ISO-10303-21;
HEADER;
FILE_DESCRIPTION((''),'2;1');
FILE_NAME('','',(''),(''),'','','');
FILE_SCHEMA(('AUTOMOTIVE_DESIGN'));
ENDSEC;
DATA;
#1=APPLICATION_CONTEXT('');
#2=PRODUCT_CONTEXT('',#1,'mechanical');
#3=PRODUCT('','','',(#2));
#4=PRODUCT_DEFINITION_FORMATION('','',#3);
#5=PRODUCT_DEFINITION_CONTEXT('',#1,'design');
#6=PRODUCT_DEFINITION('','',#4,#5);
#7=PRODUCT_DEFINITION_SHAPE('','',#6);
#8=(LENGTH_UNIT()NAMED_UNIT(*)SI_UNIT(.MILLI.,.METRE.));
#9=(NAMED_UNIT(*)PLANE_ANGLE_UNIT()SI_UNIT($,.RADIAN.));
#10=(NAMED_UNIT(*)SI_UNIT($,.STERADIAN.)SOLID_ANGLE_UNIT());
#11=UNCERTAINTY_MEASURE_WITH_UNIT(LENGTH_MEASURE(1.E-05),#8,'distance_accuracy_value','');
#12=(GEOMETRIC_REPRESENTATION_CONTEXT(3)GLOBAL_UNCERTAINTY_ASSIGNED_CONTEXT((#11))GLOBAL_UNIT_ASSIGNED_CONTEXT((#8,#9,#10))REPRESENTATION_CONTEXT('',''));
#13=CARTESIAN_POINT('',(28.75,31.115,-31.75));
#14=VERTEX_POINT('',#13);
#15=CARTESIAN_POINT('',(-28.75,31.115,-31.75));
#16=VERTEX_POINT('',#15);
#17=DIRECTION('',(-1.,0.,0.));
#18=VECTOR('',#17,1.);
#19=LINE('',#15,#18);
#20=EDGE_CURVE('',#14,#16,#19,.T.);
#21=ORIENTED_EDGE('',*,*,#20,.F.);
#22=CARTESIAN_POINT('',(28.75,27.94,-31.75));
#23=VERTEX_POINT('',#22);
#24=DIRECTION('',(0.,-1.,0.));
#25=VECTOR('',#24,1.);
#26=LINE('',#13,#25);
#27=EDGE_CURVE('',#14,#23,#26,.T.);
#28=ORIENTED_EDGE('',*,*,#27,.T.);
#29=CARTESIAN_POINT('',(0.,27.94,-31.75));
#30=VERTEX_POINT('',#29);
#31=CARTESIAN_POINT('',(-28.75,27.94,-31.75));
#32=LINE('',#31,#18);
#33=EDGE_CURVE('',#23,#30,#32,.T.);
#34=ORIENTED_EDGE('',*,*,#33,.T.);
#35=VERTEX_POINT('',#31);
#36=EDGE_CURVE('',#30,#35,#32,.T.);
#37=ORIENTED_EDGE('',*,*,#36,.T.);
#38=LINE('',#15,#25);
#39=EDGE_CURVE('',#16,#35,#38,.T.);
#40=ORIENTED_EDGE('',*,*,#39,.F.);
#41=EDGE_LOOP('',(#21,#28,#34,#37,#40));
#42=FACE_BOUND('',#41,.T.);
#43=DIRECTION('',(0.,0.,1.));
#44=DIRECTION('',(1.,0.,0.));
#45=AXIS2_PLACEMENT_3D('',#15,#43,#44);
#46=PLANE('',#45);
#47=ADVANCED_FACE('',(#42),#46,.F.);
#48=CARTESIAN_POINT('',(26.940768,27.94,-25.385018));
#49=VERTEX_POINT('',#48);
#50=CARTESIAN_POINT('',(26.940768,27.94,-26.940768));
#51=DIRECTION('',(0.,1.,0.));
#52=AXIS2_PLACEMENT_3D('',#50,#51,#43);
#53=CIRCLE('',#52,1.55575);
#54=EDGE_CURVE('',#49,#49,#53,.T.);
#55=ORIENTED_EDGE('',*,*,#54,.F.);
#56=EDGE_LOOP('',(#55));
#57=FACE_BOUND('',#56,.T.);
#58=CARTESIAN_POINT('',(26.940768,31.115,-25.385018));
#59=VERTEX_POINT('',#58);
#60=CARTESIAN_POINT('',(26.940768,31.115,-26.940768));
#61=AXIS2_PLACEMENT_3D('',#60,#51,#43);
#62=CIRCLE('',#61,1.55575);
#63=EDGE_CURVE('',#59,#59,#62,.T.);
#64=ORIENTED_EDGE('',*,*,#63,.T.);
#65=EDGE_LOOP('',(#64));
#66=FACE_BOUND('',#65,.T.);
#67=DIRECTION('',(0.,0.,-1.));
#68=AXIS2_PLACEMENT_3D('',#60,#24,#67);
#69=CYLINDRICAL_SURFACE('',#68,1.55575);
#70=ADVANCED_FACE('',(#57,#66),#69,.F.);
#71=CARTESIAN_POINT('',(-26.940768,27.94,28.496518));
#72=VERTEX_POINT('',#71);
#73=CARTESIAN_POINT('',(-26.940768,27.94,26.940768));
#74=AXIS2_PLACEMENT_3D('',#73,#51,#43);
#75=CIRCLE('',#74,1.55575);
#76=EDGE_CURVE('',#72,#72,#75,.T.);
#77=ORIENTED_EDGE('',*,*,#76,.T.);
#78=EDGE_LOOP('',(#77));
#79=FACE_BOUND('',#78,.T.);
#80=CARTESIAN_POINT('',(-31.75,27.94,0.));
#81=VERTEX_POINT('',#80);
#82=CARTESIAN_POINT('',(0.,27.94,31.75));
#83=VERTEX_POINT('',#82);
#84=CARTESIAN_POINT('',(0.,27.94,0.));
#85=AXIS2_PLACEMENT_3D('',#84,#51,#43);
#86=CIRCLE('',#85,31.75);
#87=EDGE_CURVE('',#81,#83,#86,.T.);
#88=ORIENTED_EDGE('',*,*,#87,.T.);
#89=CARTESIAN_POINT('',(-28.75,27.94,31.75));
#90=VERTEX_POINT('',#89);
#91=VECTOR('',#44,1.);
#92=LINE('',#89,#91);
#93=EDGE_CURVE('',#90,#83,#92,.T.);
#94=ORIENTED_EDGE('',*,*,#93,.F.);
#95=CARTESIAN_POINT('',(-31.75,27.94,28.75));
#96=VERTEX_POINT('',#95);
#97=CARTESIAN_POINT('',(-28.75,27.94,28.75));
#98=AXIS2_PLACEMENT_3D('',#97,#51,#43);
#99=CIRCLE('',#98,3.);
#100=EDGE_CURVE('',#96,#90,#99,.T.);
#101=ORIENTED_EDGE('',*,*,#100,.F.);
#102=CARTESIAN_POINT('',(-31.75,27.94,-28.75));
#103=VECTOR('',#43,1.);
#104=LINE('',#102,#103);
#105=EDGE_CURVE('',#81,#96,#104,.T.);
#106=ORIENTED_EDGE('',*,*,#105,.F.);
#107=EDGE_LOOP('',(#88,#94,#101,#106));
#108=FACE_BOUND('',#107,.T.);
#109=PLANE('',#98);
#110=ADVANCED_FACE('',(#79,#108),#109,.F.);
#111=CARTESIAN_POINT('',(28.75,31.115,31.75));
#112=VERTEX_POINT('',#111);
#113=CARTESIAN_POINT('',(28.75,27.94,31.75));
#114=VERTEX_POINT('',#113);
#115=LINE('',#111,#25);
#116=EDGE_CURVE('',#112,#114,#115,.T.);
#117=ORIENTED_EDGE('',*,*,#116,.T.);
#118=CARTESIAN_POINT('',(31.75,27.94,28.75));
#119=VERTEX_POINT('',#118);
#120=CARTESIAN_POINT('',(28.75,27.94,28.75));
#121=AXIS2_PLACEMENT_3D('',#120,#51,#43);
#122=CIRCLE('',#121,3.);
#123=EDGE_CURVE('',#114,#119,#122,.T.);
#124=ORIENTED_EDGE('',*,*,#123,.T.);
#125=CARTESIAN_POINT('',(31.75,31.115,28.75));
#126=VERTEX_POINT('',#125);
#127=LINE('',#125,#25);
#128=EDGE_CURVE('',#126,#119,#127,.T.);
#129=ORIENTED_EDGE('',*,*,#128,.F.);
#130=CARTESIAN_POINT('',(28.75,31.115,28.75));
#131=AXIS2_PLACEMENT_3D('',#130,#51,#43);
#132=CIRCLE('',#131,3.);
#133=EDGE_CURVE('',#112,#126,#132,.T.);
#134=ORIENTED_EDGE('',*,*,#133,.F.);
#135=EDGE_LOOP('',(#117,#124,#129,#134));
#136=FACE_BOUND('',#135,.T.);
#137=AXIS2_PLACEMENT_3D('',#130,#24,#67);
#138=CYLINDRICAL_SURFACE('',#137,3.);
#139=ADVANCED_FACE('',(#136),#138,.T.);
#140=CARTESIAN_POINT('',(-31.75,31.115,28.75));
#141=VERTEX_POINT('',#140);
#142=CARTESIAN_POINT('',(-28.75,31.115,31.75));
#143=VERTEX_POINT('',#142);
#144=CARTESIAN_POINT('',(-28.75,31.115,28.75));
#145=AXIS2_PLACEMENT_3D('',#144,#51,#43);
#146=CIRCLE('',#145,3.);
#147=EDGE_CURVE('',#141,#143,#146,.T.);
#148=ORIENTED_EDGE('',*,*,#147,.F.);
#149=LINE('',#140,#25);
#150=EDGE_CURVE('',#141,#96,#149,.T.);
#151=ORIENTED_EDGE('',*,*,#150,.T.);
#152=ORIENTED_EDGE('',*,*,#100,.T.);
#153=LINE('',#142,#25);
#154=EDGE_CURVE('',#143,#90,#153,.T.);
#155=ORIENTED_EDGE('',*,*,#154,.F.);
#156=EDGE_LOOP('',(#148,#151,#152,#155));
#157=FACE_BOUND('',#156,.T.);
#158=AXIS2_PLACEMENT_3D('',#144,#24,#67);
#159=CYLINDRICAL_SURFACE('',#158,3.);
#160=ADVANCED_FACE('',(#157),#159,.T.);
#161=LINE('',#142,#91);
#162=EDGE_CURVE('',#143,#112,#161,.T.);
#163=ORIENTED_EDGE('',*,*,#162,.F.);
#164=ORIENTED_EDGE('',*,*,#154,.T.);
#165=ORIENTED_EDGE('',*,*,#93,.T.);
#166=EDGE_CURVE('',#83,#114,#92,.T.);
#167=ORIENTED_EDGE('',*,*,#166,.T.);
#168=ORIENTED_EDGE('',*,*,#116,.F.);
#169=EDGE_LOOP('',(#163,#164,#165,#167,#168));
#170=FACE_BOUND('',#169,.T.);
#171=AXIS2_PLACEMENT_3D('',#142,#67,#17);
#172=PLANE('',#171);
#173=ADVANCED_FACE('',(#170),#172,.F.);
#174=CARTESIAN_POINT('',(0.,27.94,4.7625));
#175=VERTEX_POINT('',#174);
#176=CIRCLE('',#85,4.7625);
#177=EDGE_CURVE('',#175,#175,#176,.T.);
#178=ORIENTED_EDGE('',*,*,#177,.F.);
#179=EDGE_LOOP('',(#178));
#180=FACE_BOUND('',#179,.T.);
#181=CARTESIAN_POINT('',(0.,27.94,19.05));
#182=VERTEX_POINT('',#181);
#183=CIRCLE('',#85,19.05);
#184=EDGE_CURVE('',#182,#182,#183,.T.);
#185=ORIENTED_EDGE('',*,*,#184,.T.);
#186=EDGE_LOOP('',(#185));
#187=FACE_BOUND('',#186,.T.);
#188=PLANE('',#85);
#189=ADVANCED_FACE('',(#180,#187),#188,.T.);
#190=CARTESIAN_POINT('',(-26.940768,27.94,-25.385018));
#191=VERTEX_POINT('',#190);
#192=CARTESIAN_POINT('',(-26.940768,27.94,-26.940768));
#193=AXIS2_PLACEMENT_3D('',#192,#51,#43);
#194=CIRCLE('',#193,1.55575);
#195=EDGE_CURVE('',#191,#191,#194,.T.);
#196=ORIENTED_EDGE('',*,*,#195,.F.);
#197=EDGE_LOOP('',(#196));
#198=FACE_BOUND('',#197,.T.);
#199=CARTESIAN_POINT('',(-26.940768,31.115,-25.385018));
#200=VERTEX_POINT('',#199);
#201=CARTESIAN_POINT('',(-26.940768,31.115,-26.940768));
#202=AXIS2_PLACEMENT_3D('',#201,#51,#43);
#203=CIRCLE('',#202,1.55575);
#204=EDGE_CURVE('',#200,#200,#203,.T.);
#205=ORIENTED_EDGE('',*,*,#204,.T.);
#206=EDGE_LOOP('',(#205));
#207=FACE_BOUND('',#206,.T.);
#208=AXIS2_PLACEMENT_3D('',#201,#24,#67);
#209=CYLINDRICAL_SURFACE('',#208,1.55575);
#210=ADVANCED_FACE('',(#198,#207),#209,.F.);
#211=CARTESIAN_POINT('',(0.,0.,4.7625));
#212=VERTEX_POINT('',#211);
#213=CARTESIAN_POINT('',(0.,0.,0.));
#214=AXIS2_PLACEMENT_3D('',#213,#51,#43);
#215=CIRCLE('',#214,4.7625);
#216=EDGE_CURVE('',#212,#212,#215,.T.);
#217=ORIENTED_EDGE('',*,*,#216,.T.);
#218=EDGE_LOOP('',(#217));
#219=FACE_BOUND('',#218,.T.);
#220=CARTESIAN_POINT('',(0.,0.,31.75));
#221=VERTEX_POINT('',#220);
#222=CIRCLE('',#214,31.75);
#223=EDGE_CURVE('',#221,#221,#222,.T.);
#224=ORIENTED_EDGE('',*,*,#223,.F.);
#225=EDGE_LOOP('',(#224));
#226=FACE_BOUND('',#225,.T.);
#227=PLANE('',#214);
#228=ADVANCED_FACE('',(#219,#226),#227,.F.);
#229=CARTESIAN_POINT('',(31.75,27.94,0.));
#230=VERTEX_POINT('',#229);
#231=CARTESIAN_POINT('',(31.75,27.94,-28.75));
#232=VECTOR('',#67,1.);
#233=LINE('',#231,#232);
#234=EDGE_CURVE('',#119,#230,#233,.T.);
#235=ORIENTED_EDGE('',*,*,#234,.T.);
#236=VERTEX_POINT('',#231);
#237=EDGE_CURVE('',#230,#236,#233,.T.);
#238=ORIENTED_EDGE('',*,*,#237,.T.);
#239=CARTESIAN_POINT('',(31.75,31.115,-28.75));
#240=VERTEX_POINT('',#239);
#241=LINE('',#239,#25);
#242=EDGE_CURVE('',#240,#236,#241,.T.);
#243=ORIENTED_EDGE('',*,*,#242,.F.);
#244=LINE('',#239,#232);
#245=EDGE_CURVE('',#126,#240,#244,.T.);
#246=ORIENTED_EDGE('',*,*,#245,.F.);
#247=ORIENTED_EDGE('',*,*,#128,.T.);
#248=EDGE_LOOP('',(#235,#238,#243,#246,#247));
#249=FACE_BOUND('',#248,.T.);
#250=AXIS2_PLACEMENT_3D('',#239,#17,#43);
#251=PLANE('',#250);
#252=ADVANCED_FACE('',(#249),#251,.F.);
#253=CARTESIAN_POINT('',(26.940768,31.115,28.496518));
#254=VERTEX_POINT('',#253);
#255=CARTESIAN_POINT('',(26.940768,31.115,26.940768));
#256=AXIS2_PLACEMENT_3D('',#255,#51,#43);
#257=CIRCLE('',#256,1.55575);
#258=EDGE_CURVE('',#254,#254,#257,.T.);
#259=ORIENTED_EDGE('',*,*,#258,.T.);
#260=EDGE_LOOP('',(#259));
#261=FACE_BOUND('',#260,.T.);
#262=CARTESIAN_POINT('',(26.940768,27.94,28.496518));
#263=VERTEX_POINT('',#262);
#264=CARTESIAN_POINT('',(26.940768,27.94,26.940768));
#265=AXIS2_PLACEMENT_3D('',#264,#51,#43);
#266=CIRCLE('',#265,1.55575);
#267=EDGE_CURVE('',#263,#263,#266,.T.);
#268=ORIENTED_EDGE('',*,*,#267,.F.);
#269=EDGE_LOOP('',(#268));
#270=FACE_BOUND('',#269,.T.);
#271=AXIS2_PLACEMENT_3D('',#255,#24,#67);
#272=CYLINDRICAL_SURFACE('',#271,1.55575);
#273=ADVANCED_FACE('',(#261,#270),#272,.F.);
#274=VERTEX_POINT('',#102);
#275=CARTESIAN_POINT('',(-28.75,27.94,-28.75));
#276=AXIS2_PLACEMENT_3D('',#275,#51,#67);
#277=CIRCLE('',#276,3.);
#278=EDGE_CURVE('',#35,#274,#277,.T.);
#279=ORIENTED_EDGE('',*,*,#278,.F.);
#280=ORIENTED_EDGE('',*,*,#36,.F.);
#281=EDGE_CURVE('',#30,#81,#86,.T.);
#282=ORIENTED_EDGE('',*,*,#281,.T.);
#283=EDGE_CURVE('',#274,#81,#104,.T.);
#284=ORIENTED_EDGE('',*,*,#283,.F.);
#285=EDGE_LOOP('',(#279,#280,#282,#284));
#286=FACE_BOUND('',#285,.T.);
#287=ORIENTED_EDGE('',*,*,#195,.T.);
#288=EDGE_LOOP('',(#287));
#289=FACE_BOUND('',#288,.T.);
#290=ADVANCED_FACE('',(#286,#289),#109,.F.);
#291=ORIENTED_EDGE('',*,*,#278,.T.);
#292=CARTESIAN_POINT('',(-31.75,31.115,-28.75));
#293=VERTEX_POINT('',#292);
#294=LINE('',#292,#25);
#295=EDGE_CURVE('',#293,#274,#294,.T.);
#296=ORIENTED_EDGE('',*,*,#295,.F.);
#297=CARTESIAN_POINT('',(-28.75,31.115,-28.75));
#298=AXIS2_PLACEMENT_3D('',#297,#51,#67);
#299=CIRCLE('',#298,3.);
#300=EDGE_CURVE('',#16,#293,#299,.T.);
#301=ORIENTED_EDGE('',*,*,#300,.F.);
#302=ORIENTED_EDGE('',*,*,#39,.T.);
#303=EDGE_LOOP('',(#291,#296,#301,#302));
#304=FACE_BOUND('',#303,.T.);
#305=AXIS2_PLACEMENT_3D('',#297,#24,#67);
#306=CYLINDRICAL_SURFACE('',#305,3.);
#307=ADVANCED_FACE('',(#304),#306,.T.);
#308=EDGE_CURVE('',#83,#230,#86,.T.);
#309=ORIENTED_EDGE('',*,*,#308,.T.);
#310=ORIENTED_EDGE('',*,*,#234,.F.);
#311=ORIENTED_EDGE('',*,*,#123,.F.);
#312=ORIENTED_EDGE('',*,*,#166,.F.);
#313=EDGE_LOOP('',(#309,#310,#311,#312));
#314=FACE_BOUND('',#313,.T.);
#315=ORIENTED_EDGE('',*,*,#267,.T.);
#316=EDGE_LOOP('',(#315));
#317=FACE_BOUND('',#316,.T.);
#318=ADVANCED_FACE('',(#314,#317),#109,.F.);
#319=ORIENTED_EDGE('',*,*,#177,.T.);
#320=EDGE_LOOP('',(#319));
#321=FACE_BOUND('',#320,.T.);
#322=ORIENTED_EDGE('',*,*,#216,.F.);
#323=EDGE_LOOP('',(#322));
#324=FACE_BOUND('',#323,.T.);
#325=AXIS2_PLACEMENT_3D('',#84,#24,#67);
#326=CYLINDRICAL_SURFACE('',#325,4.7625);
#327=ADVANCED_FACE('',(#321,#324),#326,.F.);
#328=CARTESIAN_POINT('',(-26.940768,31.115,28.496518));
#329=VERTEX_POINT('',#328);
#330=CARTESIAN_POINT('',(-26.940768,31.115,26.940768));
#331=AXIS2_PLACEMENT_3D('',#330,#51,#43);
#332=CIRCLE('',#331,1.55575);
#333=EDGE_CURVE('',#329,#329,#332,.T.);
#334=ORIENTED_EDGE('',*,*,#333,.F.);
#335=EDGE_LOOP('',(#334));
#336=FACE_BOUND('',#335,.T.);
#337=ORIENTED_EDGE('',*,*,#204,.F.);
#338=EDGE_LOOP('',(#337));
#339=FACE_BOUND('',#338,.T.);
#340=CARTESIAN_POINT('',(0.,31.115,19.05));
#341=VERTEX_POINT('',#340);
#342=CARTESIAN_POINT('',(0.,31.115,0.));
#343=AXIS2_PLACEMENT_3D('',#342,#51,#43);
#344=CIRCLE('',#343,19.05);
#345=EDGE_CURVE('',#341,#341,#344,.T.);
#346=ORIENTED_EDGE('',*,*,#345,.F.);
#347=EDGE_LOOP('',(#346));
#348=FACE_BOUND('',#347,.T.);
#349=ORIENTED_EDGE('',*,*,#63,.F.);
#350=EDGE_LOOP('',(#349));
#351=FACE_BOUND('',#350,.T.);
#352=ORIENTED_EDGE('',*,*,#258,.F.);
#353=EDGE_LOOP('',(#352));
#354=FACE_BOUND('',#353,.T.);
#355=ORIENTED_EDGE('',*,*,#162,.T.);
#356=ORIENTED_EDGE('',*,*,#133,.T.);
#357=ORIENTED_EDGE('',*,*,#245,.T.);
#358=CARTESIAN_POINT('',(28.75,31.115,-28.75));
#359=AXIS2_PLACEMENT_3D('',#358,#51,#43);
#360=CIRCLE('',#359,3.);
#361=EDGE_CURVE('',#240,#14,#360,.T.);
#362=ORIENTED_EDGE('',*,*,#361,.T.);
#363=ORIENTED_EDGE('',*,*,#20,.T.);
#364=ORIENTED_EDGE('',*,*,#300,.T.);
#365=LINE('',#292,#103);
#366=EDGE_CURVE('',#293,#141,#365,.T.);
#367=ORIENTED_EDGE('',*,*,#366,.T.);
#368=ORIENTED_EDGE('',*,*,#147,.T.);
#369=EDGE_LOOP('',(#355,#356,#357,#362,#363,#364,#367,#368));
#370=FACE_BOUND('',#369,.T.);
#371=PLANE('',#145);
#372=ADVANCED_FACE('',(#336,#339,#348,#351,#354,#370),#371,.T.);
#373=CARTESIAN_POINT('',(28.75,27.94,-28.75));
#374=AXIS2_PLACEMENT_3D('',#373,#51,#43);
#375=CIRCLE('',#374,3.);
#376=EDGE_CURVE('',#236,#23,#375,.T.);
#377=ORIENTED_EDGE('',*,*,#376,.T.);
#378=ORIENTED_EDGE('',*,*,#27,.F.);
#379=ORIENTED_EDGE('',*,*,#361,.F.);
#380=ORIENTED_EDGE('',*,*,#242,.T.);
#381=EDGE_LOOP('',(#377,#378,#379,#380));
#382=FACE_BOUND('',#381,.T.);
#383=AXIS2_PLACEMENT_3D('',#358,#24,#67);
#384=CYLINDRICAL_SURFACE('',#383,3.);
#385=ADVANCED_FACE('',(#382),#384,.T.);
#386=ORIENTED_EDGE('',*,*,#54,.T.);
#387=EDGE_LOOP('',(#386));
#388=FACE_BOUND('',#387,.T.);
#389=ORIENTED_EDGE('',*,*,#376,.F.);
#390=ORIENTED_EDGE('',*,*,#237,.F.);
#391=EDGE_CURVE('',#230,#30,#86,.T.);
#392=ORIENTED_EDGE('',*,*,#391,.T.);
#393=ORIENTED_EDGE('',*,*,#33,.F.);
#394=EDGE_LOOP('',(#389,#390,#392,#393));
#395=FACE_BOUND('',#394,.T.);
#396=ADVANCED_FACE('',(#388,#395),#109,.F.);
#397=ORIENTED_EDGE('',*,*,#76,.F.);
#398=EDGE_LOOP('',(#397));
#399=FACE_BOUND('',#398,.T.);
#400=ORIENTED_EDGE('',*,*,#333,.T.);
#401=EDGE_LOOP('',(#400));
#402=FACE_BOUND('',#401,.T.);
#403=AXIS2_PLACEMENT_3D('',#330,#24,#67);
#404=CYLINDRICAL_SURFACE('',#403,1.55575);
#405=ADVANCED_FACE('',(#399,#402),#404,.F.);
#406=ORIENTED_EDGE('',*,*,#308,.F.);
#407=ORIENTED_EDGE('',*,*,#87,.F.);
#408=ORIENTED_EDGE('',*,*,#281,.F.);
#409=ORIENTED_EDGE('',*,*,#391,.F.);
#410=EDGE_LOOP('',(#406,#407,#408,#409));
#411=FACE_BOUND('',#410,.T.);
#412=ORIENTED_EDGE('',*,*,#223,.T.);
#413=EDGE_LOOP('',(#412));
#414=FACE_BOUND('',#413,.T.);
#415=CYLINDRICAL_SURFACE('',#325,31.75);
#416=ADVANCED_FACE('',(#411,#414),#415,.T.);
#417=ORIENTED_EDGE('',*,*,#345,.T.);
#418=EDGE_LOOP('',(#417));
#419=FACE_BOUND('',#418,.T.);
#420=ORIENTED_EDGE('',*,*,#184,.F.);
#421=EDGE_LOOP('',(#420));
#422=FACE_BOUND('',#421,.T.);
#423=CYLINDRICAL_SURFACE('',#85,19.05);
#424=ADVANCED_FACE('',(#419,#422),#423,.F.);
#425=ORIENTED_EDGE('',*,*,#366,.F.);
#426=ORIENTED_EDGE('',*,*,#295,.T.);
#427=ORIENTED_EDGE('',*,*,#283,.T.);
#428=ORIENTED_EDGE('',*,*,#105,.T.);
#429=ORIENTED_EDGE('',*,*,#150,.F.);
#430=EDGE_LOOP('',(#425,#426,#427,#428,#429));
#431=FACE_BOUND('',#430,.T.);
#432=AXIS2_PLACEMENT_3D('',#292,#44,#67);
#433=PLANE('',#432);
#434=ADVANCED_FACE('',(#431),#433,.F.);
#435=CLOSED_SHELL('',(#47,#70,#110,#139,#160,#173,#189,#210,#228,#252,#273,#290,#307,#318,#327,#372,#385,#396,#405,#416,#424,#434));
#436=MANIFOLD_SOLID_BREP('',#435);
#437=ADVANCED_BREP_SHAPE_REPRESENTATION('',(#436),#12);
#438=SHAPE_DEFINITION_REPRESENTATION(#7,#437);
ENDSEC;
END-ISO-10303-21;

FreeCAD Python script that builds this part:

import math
import FreeCAD as App
import Part
import Sketcher
from FreeCAD import Vector
Q = App.Units.Quantity

doc = App.newDocument("Part")
body = doc.addObject("PartDesign::Body", "Body")

sketch1 = doc.addObject("Sketcher::SketchObject", "Sketch")
body.addObject(sketch1)
sketch1.AttachmentSupport = (doc.XZ_Plane, [""])
sketch1.MapMode = "FlatFace"
sketch1.addGeometry(Part.Circle(Vector(0, 0, 0), Vector(0, 0, 1), 31.8), False)
sketch1.addGeometry(Part.Circle(Vector(0, 0, 0), Vector(0, 0, 1), 4.8), False)
sketch1.addConstraint(Sketcher.Constraint("Coincident", 0, 3, -1, 1))
sketch1.addConstraint(Sketcher.Constraint("Coincident", 1, 3, -1, 1))
sketch1.addConstraint(Sketcher.Constraint("Diameter", 0, Q("2.5 in")))
sketch1.addConstraint(Sketcher.Constraint("Diameter", 1, Q("0.375 in")))
pad1 = doc.addObject("PartDesign::Pad", "Pad")
body.addObject(pad1)
pad1.Profile = sketch1
pad1.Length = Q("1.1 in")
pad1.Reversed = True

sketch2 = doc.addObject("Sketcher::SketchObject", "Sketch001")
body.addObject(sketch2)
sketch2.AttachmentSupport = (doc.XZ_Plane, [""])
sketch2.MapMode = "FlatFace"
sketch2.AttachmentOffset = App.Placement(Vector(0, 0, -1.1 * 25.4), App.Rotation())
sketch2.addGeometry(Part.LineSegment(Vector(28.8, -31.8, 0), Vector(-28.8, -31.8, 0)), False)
sketch2.addGeometry(Part.ArcOfCircle(Part.Circle(Vector(-28.8, -28.8, 0), Vector(0, 0, 1), 3), math.radians(180), math.radians(270)), False)
sketch2.addGeometry(Part.LineSegment(Vector(-31.8, -28.8, 0), Vector(-31.8, 28.8, 0)), False)
sketch2.addGeometry(Part.ArcOfCircle(Part.Circle(Vector(-28.8, 28.8, 0), Vector(0, 0, 1), 3), math.radians(90), math.radians(180)), False)
sketch2.addGeometry(Part.LineSegment(Vector(-28.8, 31.8, 0), Vector(28.8, 31.8, 0)), False)
sketch2.addGeometry(Part.ArcOfCircle(Part.Circle(Vector(28.8, 28.8, 0), Vector(0, 0, 1), 3), math.radians(0), math.radians(90)), False)
sketch2.addGeometry(Part.LineSegment(Vector(31.8, 28.8, 0), Vector(31.8, -28.8, 0)), False)
sketch2.addGeometry(Part.ArcOfCircle(Part.Circle(Vector(28.8, -28.8, 0), Vector(0, 0, 1), 3), math.radians(-90), math.radians(0)), False)
sketch2.addGeometry(Part.Circle(Vector(26.9, 26.9, 0), Vector(0, 0, 1), 1.6), False)
sketch2.addGeometry(Part.Circle(Vector(-26.9, 26.9, 0), Vector(0, 0, 1), 1.6), False)
sketch2.addGeometry(Part.Circle(Vector(26.9, -26.9, 0), Vector(0, 0, 1), 1.6), False)
sketch2.addGeometry(Part.Circle(Vector(-26.9, -26.9, 0), Vector(0, 0, 1), 1.6), False)
sketch2.addConstraint(Sketcher.Constraint("Tangent", 0, 2, 1, 2))
sketch2.addConstraint(Sketcher.Constraint("Tangent", 1, 1, 2, 1))
sketch2.addConstraint(Sketcher.Constraint("Tangent", 2, 2, 3, 2))
sketch2.addConstraint(Sketcher.Constraint("Tangent", 3, 1, 4, 1))
sketch2.addConstraint(Sketcher.Constraint("Tangent", 4, 2, 5, 2))
sketch2.addConstraint(Sketcher.Constraint("Tangent", 5, 1, 6, 1))
sketch2.addConstraint(Sketcher.Constraint("Tangent", 6, 2, 7, 2))
sketch2.addConstraint(Sketcher.Constraint("Tangent", 7, 1, 0, 1))
sketch2.addConstraint(Sketcher.Constraint("Horizontal", 0))
sketch2.addConstraint(Sketcher.Constraint("Vertical", 2))
sketch2.addConstraint(Sketcher.Constraint("Horizontal", 4))
sketch2.addConstraint(Sketcher.Constraint("Vertical", 6))
sketch2.addConstraint(Sketcher.Constraint("Equal", 1, 3))
sketch2.addConstraint(Sketcher.Constraint("Equal", 3, 5))
sketch2.addConstraint(Sketcher.Constraint("Equal", 5, 7))
sketch2.addConstraint(Sketcher.Constraint("Equal", 8, 9))
sketch2.addConstraint(Sketcher.Constraint("Equal", 9, 10))
sketch2.addConstraint(Sketcher.Constraint("Equal", 10, 11))
sketch2.addConstraint(Sketcher.Constraint("Symmetric", 1, 3, 5, 3, -1, 1))
sketch2.addConstraint(Sketcher.Constraint("Symmetric", 9, 3, 10, 3, -1, 1))
sketch2.addConstraint(Sketcher.Constraint("Symmetric", 8, 3, 11, 3, -1, 1))
sketch2.addConstraint(Sketcher.Constraint("Symmetric", 8, 3, 9, 3, -2))
sketch2.addConstraint(Sketcher.Constraint("Equal", 4, 2))
sketch2.addConstraint(Sketcher.Constraint("Diameter", 8, Q("0.1225 in")))
sketch2.addConstraint(Sketcher.Constraint("DistanceY", 0, 2, -1, 1, Q("1.25 in")))
sketch2.addConstraint(Sketcher.Constraint("Radius", 1, 3.0))
sketch2.addConstraint(Sketcher.Constraint("DistanceX", -1, 1, 8, 3, 26.940768))
sketch2.addConstraint(Sketcher.Constraint("DistanceY", -1, 1, 8, 3, 26.940768))
pad2 = doc.addObject("PartDesign::Pad", "Pad001")
body.addObject(pad2)
pad2.Profile = sketch2
pad2.Length = Q("0.125 in")
pad2.Reversed = True

sketch3 = doc.addObject("Sketcher::SketchObject", "Sketch002")
body.addObject(sketch3)
sketch3.AttachmentSupport = (doc.XZ_Plane, [""])
sketch3.MapMode = "FlatFace"
sketch3.AttachmentOffset = App.Placement(Vector(0, 0, -1.225 * 25.4), App.Rotation())
sketch3.addGeometry(Part.Circle(Vector(0, 0, 0), Vector(0, 0, 1), 19), False)
sketch3.addConstraint(Sketcher.Constraint("Coincident", 0, 3, -1, 1))
sketch3.addConstraint(Sketcher.Constraint("Diameter", 0, Q("1.5 in")))
pocket1 = doc.addObject("PartDesign::Pocket", "Pocket")
body.addObject(pocket1)
pocket1.Profile = sketch3
pocket1.Length = Q("0.125 in")
pocket1.Reversed = True

doc.recompute()
